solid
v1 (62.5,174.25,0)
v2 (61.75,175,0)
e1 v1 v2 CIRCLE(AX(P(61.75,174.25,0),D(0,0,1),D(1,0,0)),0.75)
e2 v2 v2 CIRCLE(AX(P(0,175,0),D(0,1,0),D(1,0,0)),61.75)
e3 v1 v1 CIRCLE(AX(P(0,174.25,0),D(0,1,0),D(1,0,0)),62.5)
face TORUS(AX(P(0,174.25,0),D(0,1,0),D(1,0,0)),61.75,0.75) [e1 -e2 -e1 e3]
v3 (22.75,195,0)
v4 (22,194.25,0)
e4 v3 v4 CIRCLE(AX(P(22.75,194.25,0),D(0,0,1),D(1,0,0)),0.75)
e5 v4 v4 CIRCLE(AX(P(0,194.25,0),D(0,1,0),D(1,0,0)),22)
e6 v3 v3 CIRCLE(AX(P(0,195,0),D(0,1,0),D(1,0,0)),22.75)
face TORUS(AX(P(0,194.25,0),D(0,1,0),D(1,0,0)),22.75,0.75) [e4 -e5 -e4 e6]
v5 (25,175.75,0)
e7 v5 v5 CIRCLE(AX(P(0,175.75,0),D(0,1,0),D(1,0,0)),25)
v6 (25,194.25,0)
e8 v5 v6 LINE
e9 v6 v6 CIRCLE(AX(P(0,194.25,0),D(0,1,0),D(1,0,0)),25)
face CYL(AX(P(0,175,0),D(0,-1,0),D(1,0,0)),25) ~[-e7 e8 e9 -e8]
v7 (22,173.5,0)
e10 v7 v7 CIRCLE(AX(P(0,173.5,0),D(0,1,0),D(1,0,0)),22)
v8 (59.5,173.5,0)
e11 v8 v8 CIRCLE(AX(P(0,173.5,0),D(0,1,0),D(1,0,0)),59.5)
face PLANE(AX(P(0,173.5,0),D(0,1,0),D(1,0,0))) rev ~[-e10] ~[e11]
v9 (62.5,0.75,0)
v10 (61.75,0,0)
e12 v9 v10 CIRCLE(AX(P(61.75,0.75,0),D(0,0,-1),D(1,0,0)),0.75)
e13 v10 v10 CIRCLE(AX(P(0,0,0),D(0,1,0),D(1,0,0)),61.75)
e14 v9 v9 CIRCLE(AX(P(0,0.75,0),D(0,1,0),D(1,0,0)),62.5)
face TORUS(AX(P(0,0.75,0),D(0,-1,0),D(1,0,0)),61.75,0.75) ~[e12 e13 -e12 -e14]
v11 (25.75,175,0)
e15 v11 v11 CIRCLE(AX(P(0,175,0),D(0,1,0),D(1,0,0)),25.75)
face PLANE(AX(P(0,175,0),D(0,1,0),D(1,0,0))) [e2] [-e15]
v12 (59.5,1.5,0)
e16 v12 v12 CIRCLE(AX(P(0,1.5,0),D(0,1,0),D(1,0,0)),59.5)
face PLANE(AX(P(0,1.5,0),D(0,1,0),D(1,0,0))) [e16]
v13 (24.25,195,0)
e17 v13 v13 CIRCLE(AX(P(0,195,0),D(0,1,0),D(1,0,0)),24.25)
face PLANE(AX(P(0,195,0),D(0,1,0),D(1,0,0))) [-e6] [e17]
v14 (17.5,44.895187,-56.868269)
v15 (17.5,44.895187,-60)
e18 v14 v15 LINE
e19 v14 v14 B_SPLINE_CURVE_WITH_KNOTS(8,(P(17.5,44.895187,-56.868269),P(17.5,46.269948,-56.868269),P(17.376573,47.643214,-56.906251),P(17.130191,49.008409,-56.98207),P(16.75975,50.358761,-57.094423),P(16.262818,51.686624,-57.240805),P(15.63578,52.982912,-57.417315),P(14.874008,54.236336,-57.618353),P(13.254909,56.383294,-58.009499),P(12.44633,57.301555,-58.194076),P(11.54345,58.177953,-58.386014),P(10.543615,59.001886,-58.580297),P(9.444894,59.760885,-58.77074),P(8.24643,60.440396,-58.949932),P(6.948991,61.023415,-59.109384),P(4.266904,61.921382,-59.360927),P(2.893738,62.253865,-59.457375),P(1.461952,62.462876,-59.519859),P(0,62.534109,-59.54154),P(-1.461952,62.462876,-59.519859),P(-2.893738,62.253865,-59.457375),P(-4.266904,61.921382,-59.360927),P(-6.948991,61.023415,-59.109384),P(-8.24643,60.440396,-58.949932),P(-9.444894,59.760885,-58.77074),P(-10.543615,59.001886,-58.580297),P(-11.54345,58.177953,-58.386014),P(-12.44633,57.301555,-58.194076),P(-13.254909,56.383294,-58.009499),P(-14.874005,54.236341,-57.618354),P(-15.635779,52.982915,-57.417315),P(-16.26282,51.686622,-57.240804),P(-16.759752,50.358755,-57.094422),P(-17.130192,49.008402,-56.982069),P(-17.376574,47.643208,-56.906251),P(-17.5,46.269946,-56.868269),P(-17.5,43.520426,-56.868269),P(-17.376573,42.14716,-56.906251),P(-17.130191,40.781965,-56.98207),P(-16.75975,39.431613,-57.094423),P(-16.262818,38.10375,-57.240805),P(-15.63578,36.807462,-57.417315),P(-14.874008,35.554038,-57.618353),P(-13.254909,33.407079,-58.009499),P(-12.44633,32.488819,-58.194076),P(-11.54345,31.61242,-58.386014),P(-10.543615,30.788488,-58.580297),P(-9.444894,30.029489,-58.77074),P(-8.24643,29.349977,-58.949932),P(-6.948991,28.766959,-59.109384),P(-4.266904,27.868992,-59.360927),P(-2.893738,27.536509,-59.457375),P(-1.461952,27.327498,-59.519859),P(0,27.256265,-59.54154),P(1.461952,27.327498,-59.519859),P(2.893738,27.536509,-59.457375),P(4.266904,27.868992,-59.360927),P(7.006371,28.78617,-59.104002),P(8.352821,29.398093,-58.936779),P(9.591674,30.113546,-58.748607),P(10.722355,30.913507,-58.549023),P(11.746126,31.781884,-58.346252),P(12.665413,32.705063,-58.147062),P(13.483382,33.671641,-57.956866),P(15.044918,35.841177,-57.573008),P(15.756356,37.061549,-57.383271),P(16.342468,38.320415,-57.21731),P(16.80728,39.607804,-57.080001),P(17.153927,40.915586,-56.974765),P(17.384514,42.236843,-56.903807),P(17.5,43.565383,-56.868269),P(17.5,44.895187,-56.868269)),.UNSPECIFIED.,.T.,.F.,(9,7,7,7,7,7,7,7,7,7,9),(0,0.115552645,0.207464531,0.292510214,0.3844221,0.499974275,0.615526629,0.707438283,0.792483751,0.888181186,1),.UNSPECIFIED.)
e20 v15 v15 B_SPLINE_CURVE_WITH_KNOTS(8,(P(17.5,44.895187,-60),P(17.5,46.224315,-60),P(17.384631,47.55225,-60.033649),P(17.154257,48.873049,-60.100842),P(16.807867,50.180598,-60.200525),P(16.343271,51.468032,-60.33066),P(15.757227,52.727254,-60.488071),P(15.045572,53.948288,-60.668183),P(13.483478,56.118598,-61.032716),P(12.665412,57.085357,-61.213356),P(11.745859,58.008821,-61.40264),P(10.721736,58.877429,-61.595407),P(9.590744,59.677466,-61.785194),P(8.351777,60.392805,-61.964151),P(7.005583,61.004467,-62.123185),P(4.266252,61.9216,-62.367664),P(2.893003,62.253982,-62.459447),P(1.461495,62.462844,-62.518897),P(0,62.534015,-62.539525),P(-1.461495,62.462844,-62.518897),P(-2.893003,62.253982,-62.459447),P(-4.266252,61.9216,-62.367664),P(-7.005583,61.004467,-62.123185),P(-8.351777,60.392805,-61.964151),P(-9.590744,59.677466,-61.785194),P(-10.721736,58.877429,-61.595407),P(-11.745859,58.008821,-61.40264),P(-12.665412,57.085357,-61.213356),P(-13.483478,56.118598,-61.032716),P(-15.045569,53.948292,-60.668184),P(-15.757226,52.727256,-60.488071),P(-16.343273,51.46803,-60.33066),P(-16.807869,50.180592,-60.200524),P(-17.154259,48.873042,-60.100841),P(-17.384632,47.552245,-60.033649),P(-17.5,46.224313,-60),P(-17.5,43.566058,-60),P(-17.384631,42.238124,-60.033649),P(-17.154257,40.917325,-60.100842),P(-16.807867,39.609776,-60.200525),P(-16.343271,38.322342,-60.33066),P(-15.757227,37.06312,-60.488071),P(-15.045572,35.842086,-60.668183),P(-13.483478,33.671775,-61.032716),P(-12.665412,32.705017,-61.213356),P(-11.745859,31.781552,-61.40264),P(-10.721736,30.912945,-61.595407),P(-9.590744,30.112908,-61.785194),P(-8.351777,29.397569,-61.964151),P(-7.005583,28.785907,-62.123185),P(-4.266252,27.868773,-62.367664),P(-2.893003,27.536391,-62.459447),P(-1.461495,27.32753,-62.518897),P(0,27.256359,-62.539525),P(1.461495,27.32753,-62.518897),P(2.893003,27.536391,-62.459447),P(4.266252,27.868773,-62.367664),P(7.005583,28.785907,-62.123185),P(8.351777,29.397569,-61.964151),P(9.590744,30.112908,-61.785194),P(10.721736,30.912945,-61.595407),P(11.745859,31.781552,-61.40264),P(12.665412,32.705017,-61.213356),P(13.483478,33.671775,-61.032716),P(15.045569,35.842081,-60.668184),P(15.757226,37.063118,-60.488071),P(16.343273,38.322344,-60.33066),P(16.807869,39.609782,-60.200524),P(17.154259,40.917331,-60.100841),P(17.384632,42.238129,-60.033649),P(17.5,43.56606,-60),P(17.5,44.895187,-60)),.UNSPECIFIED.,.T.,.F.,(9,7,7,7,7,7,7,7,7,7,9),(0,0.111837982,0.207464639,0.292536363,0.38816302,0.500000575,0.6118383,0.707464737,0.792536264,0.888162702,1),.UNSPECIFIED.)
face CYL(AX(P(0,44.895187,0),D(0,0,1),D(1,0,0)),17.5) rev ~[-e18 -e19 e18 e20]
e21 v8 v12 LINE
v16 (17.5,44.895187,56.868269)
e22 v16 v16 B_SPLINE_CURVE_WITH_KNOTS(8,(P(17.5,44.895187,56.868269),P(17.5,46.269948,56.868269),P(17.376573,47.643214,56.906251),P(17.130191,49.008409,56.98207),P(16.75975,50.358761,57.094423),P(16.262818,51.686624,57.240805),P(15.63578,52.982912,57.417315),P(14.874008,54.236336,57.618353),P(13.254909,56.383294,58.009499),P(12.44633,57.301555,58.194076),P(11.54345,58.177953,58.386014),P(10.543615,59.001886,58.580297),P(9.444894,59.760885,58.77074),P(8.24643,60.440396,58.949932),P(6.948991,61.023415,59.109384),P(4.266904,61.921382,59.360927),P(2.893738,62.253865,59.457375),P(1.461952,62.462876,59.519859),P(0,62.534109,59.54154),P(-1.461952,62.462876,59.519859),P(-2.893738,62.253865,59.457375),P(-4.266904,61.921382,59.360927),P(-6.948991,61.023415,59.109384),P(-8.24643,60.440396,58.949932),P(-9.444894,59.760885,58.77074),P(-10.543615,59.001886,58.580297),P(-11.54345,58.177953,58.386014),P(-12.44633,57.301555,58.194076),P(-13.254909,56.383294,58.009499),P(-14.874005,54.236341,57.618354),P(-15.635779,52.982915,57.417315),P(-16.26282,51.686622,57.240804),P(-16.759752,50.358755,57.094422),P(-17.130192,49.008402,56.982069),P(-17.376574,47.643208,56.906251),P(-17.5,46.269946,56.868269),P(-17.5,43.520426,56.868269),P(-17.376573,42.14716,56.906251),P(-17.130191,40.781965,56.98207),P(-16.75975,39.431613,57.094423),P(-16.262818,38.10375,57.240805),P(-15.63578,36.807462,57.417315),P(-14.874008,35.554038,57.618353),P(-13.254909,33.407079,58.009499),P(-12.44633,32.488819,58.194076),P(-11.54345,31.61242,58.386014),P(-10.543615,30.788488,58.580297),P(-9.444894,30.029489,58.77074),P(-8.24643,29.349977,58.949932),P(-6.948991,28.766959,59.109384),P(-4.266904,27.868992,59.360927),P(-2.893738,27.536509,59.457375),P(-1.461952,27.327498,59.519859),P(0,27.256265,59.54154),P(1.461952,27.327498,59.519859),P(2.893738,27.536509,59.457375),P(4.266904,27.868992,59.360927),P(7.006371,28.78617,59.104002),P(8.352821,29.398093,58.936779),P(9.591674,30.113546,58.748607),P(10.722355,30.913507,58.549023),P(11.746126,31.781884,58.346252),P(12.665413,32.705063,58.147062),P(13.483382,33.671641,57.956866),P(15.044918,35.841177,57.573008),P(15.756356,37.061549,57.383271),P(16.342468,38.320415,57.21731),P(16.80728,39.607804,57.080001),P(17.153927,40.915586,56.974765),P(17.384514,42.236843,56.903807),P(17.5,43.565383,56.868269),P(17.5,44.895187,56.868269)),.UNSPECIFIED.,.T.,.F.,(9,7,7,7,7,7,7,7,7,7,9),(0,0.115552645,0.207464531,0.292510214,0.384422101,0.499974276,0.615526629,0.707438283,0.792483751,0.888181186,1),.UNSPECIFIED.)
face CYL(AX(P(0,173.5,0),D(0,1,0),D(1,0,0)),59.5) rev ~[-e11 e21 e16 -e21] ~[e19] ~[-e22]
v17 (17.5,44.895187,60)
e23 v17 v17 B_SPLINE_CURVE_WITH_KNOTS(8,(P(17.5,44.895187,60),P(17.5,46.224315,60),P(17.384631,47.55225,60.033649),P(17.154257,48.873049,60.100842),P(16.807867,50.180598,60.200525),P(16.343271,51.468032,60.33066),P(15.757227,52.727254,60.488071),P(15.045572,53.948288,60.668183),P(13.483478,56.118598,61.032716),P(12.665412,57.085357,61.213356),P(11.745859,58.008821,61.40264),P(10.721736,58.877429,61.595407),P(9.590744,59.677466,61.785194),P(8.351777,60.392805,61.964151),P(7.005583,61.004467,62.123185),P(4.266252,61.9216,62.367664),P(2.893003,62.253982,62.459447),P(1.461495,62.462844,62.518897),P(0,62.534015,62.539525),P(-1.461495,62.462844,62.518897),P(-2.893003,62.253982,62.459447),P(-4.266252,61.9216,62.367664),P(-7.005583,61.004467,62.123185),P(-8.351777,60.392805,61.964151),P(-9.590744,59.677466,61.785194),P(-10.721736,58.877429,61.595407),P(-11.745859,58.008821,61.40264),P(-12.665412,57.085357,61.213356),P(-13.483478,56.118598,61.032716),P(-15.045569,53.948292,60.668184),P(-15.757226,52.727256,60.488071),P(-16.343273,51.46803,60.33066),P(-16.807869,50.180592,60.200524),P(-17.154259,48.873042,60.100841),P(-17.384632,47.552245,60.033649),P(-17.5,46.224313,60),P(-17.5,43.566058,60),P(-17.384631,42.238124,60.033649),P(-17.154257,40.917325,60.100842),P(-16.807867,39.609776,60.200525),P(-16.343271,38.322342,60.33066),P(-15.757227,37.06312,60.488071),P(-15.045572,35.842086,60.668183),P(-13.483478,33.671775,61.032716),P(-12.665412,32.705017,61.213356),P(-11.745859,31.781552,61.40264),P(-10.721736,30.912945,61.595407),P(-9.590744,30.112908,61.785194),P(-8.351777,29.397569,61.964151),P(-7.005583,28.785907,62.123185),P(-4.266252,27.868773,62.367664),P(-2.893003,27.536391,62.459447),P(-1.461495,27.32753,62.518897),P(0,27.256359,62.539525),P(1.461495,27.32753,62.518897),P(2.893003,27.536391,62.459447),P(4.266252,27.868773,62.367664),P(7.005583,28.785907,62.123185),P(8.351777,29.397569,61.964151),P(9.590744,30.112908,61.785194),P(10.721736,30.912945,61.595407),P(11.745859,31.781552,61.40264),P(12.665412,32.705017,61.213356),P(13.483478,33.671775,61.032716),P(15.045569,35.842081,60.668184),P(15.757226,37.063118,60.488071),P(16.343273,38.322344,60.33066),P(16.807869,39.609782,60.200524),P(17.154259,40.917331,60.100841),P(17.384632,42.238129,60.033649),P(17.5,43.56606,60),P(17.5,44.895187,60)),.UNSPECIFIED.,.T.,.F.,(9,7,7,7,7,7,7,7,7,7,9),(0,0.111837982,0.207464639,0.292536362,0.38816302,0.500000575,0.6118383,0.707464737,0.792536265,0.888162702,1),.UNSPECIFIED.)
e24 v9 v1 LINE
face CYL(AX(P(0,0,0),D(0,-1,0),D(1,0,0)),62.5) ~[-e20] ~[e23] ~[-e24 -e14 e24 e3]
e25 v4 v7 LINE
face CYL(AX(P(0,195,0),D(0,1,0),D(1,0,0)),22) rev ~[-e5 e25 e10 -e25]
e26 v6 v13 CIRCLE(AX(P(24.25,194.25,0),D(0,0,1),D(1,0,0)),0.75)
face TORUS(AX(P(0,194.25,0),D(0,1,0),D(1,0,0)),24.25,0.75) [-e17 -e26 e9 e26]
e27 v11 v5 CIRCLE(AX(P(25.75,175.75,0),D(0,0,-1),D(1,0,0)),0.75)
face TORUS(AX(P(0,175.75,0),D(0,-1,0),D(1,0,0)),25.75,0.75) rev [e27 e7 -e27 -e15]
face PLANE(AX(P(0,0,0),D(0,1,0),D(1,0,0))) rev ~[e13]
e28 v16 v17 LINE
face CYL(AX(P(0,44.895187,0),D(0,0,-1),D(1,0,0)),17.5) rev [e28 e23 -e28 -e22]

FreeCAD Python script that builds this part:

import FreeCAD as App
import Part
import Sketcher
Q = App.Units.Quantity


def edges_at(feature, points):
    """Names of the edges that pass closest to the given points."""
    edges = feature.Shape.Edges
    near = lambda p: min(range(len(edges)), key=lambda i: edges[i].distToShape(Part.Vertex(*p))[0])
    return sorted({f"Edge{near(p) + 1}" for p in points})

doc = App.newDocument("Part")
body = doc.addObject("PartDesign::Body", "Body")

sketch1 = doc.addObject("Sketcher::SketchObject", "Sketch")
body.addObject(sketch1)
sketch1.AttachmentSupport = (doc.XZ_Plane, [""])
sketch1.MapMode = "FlatFace"
sketch1.addGeometry(Part.Circle(App.Vector(0, 0, 0), App.Vector(0, 0, 1), 62), False)
sketch1.addConstraint([
    Sketcher.Constraint("Coincident", 0, 3, -1, 1),
    Sketcher.Constraint("Diameter", 0, Q("125 mm")),
])
pad1 = doc.addObject("PartDesign::Pad", "Pad")
body.addObject(pad1)
pad1.Profile = sketch1
pad1.Length = 175
pad1.Reversed = True

sketch2 = doc.addObject("Sketcher::SketchObject", "Sketch001")
body.addObject(sketch2)
sketch2.AttachmentSupport = (doc.XZ_Plane, [""])
sketch2.MapMode = "FlatFace"
sketch2.AttachmentOffset = App.Placement(App.Vector(0, 0, -173.5), App.Rotation())
sketch2.addGeometry(Part.Circle(App.Vector(0, 0, 0), App.Vector(0, 0, 1), 60), False)
sketch2.addConstraint([
    Sketcher.Constraint("Coincident", 0, 3, -1, 1),
    Sketcher.Constraint("Diameter", 0, Q("119 mm")),
])
pocket1 = doc.addObject("PartDesign::Pocket", "Pocket")
body.addObject(pocket1)
pocket1.Profile = sketch2
pocket1.Length = 172
pocket1.Reversed = True

sketch3 = doc.addObject("Sketcher::SketchObject", "Sketch002")
body.addObject(sketch3)
sketch3.AttachmentSupport = (doc.XZ_Plane, [""])
sketch3.MapMode = "FlatFace"
sketch3.AttachmentOffset = App.Placement(App.Vector(0, 0, -175), App.Rotation())
sketch3.addGeometry(Part.Circle(App.Vector(0, 0, 0), App.Vector(0, 0, 1), 25), False)
sketch3.addConstraint([
    Sketcher.Constraint("Coincident", 0, 3, -1, 1),
    Sketcher.Constraint("Diameter", 0, Q("50 mm")),
])
pad2 = doc.addObject("PartDesign::Pad", "Pad001")
body.addObject(pad2)
pad2.Profile = sketch3
pad2.Length = 20
pad2.Reversed = True

sketch4 = doc.addObject("Sketcher::SketchObject", "Sketch003")
body.addObject(sketch4)
sketch4.AttachmentSupport = (doc.XZ_Plane, [""])
sketch4.MapMode = "FlatFace"
sketch4.AttachmentOffset = App.Placement(App.Vector(0, 0, -195), App.Rotation())
sketch4.addGeometry(Part.Circle(App.Vector(0, 0, 0), App.Vector(0, 0, 1), 22), False)
sketch4.addConstraint([
    Sketcher.Constraint("Coincident", 0, 3, -1, 1),
    Sketcher.Constraint("Diameter", 0, Q("44 mm")),
])
pocket2 = doc.addObject("PartDesign::Pocket", "Pocket001")
body.addObject(pocket2)
pocket2.Profile = sketch4
pocket2.Length = 30
pocket2.Reversed = True
doc.recompute()

fillet = doc.addObject("PartDesign::Fillet", "Fillet")
body.addObject(fillet)
fillet.Base = (pocket2, edges_at(pocket2, [
    (-25, 175, 0),
    (-25, 195, 0),
    (-22, 195, 0),
    (-62.5, 0, 0),
    (-62.5, 175, 0),
]))
fillet.Radius = 0.75

sketch5 = doc.addObject("Sketcher::SketchObject", "Sketch004")
body.addObject(sketch5)
sketch5.AttachmentSupport = (doc.XY_Plane, [""])
sketch5.MapMode = "FlatFace"
sketch5.addGeometry(Part.Circle(App.Vector(0, 45, 0), App.Vector(0, 0, 1), 18), False)
sketch5.addConstraint([
    Sketcher.Constraint("PointOnObject", 0, 3, -2),
    Sketcher.Constraint("Diameter", 0, Q("35 mm")),
    Sketcher.Constraint("DistanceY", -1, 1, 0, 3, Q("44.895187 mm")),
])
pocket3 = doc.addObject("PartDesign::Pocket", "Pocket002")
body.addObject(pocket3)
pocket3.Profile = sketch5
pocket3.Type = "ThroughAll"
pocket3.Midplane = True

doc.recompute()
